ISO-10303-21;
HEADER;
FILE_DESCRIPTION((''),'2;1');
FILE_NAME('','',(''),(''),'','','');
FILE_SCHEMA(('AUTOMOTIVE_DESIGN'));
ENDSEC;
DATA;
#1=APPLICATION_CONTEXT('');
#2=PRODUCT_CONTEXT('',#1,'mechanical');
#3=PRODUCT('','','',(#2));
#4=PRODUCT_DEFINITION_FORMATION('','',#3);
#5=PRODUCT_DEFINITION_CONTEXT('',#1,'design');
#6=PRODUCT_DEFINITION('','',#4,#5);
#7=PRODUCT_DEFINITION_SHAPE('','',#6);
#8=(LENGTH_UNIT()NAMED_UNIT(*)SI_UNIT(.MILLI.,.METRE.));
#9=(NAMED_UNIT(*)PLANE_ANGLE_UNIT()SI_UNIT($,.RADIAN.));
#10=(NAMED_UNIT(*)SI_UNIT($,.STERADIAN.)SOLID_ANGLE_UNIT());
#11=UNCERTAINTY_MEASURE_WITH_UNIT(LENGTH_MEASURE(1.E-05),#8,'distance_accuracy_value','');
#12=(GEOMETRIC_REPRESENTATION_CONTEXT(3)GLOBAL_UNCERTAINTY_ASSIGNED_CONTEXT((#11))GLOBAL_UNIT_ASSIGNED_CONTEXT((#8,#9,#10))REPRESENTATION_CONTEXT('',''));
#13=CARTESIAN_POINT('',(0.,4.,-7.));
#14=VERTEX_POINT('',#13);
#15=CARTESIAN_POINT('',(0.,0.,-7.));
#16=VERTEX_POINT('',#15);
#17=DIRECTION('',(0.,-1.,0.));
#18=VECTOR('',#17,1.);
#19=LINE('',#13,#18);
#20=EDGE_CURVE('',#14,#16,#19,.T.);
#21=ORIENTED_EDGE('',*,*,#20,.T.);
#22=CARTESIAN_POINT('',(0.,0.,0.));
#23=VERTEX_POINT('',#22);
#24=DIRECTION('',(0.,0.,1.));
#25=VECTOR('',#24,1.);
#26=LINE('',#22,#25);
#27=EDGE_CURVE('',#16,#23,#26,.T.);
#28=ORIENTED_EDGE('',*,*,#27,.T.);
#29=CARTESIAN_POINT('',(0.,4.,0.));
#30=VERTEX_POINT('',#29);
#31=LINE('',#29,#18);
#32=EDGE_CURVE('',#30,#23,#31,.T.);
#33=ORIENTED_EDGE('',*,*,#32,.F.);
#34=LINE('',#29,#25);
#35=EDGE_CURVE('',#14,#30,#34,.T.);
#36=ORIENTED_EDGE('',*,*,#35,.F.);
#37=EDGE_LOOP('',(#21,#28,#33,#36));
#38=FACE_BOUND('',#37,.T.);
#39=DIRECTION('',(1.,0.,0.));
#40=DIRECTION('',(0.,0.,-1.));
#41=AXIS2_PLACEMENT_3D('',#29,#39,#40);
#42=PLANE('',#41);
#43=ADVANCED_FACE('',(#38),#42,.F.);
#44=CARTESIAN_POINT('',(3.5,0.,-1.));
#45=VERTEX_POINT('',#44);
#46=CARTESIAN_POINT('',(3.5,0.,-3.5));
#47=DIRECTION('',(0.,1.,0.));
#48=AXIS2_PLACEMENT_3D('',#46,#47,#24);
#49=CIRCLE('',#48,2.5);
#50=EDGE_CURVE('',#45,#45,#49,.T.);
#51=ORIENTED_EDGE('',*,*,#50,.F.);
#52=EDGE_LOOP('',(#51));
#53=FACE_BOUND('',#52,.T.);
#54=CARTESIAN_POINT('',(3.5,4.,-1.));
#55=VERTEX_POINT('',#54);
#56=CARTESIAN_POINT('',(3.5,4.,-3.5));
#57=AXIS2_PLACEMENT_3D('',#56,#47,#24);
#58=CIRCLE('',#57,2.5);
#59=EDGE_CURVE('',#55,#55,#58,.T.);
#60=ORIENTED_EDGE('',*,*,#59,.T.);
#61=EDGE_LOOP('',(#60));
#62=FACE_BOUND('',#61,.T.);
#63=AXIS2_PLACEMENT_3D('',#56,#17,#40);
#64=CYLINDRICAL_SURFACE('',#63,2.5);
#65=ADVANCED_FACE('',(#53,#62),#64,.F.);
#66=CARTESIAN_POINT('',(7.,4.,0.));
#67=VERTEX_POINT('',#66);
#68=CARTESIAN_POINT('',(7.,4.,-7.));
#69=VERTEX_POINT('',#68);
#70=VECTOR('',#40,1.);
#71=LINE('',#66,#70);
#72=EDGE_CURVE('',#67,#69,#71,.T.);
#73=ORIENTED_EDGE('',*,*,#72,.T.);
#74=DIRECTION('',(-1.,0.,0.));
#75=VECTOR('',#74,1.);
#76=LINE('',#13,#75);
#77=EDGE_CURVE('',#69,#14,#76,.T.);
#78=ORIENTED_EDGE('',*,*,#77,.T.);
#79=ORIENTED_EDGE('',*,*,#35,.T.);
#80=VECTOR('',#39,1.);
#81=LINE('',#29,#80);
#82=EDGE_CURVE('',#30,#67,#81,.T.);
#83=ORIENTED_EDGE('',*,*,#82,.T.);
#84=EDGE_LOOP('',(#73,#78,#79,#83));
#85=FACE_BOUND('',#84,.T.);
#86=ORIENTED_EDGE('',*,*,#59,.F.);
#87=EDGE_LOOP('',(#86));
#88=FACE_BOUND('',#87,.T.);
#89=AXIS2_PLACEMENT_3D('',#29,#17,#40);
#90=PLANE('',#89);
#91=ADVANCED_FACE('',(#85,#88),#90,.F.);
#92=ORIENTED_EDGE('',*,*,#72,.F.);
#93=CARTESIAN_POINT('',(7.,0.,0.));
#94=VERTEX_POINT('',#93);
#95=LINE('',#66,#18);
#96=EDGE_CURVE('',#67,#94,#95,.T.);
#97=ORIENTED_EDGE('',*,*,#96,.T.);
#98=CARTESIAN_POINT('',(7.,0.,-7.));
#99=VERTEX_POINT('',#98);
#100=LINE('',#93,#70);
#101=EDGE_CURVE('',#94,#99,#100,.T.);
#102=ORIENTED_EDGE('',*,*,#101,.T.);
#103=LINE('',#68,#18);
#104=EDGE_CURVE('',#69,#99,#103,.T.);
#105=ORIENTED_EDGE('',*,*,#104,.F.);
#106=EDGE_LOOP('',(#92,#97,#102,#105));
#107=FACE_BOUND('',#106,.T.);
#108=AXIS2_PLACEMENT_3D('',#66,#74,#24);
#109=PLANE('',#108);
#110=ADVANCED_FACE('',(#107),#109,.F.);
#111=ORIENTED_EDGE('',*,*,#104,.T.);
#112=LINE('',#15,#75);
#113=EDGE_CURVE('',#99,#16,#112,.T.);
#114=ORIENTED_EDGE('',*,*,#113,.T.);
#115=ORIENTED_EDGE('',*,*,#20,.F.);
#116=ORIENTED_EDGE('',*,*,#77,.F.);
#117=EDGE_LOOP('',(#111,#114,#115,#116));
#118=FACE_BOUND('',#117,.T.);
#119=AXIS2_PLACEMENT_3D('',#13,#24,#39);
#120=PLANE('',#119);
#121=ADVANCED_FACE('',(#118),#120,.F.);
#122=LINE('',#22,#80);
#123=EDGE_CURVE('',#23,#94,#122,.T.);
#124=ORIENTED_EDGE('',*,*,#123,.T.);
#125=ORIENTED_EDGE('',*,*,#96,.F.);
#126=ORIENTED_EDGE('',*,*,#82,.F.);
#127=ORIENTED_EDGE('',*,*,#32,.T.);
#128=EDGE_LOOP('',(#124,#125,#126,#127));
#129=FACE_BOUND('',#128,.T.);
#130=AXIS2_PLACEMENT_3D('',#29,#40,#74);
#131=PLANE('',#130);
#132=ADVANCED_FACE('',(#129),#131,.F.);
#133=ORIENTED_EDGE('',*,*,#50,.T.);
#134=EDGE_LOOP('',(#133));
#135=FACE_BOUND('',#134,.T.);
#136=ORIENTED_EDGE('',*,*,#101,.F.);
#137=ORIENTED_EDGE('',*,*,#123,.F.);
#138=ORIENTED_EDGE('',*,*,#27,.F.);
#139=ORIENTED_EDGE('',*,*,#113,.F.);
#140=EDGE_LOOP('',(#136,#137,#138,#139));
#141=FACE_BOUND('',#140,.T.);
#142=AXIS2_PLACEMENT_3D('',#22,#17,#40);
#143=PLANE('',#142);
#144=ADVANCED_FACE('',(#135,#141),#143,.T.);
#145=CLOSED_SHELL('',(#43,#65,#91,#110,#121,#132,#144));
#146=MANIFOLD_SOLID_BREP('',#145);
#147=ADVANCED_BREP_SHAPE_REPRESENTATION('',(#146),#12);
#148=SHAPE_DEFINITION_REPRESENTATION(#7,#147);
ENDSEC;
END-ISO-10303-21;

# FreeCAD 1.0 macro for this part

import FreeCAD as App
import Part
import Sketcher
from FreeCAD import Vector
Q = App.Units.Quantity

doc = App.newDocument("Part")
body = doc.addObject("PartDesign::Body", "Body")

sketch1 = body.newObject("Sketcher::SketchObject", "Sketch")
sketch1.AttachmentSupport = (doc.getObject("XZ_Plane"), [""])
sketch1.MapMode = "FlatFace"
sketch1.addGeometry(Part.LineSegment(Vector(0, -7, 0), Vector(0, 0, 0)), False)
sketch1.addGeometry(Part.LineSegment(Vector(0, 0, 0), Vector(7, 0, 0)), False)
sketch1.addGeometry(Part.LineSegment(Vector(7, 0, 0), Vector(7, -7, 0)), False)
sketch1.addGeometry(Part.LineSegment(Vector(7, -7, 0), Vector(0, -7, 0)), False)
sketch1.addGeometry(Part.Circle(Vector(3.5, -3.5, 0), Vector(0, 0, 1), 2.5), False)
sketch1.addConstraint(Sketcher.Constraint("Coincident", 0, 2, 1, 1))
sketch1.addConstraint(Sketcher.Constraint("Coincident", 1, 2, 2, 1))
sketch1.addConstraint(Sketcher.Constraint("Coincident", 2, 2, 3, 1))
sketch1.addConstraint(Sketcher.Constraint("Coincident", 3, 2, 0, 1))
sketch1.addConstraint(Sketcher.Constraint("Vertical", 0))
sketch1.addConstraint(Sketcher.Constraint("Horizontal", 1))
sketch1.addConstraint(Sketcher.Constraint("Vertical", 2))
sketch1.addConstraint(Sketcher.Constraint("Horizontal", 3))
sketch1.addConstraint(Sketcher.Constraint("Coincident", 0, 2, -1, 1))
sketch1.addConstraint(Sketcher.Constraint("Equal", 3, 0))
sketch1.addConstraint(Sketcher.Constraint("Diameter", 4, Q("5 mm")))
sketch1.addConstraint(Sketcher.Constraint("DistanceX", 1, 1, 1, 2, Q("7 mm")))
sketch1.addConstraint(Sketcher.Constraint("DistanceX", -1, 1, 4, 3, Q("3.5 mm")))
sketch1.addConstraint(Sketcher.Constraint("DistanceY", 4, 3, -1, 1, Q("3.5 mm")))
pad1 = body.newObject("PartDesign::Pad", "Pad")
pad1.Profile = sketch1
pad1.Length = 4
pad1.Reversed = True

doc.recompute()
